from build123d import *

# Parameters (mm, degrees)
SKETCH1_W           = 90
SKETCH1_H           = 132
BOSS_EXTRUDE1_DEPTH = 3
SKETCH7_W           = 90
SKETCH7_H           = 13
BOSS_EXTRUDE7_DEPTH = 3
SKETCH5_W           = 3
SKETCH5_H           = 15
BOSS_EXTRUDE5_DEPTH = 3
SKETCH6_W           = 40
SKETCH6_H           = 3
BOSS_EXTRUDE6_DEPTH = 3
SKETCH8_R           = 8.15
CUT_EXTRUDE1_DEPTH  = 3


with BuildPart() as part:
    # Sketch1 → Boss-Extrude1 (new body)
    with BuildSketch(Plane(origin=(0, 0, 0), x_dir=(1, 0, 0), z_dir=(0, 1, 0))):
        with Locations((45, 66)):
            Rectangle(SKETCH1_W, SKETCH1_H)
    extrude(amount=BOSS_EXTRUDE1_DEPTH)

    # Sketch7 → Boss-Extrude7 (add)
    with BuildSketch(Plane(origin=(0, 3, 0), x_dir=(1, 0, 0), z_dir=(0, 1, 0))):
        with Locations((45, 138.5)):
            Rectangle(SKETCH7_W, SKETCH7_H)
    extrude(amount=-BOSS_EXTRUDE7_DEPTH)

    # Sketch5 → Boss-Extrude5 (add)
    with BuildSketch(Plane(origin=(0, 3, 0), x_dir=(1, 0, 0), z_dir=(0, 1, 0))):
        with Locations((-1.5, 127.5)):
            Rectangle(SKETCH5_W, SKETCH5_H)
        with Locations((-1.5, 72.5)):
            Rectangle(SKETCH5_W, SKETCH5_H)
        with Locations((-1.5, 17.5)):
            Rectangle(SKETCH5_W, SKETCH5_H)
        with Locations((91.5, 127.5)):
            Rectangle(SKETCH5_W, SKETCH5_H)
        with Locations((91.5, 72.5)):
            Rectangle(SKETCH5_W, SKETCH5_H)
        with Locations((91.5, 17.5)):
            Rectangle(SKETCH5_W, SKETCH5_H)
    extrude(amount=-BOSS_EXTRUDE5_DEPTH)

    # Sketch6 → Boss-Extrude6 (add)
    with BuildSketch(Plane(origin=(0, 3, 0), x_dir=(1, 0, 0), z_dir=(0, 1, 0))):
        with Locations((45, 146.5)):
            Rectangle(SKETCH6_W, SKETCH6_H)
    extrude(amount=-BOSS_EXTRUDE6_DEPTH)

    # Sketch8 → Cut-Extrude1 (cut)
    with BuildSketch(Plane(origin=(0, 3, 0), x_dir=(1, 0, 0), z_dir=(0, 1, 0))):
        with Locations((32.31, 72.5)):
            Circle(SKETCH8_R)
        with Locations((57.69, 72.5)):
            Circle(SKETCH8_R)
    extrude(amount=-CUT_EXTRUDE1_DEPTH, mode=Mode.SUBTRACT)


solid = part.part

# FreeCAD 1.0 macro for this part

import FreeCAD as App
import Part
import Sketcher
from FreeCAD import Vector


def add_polygon(sketch, points):
    """Adds a closed chain of lines whose ends are joined by coincident constraints."""
    first, n = sketch.GeometryCount, len(points)
    for a, b in zip(points, points[1:] + points[:1]):
        sketch.addGeometry(Part.LineSegment(App.Vector(*a, 0), App.Vector(*b, 0)), False)
    for i in range(n):
        sketch.addConstraint(Sketcher.Constraint("Coincident", first + i, 2, first + (i + 1) % n, 1))

doc = App.newDocument("Part")
body = doc.addObject("PartDesign::Body", "Body")

# Sketch on XZ plane
sketch1 = body.newObject("Sketcher::SketchObject", "Sketch")
sketch1.AttachmentSupport = (doc.getObject("XZ_Plane"), [""])
sketch1.MapMode = "FlatFace"
add_polygon(sketch1, [(0, -132), (0, 0), (90, 0), (90, -132)])  # lines 0-3
sketch1.addConstraint(Sketcher.Constraint("Vertical", 0))
sketch1.addConstraint(Sketcher.Constraint("Horizontal", 1))
sketch1.addConstraint(Sketcher.Constraint("Vertical", 2))
sketch1.addConstraint(Sketcher.Constraint("Horizontal", 3))
sketch1.addConstraint(Sketcher.Constraint("Coincident", 0, 2, -1, 1))
sketch1.addConstraint(Sketcher.Constraint("DistanceX", 1, 1, 1, 2, 90.0))
sketch1.addConstraint(Sketcher.Constraint("DistanceY", 0, 1, 0, 2, 132.0))
pad1 = body.newObject("PartDesign::Pad", "Pad")
pad1.Profile = sketch1
pad1.Length = 3
pad1.Reversed = True

# Sketch on XZ plane
sketch2 = body.newObject("Sketcher::SketchObject", "Sketch001")
sketch2.AttachmentSupport = (doc.getObject("XZ_Plane"), [""])
sketch2.MapMode = "FlatFace"
sketch2.AttachmentOffset = App.Placement(Vector(0, 0, -3), App.Rotation())
add_polygon(sketch2, [(0, -145), (0, -132), (90, -132), (90, -145)])  # lines 0-3
sketch2.addConstraint(Sketcher.Constraint("Vertical", 0))
sketch2.addConstraint(Sketcher.Constraint("Horizontal", 1))
sketch2.addConstraint(Sketcher.Constraint("Vertical", 2))
sketch2.addConstraint(Sketcher.Constraint("Horizontal", 3))
sketch2.addConstraint(Sketcher.Constraint("PointOnObject", 0, 2, -2))
sketch2.addConstraint(Sketcher.Constraint("DistanceX", 1, 1, 1, 2, 90.0))
sketch2.addConstraint(Sketcher.Constraint("DistanceY", 0, 1, 0, 2, 13.0))
sketch2.addConstraint(Sketcher.Constraint("DistanceY", 0, 2, -1, 1, 132.0))
pad2 = body.newObject("PartDesign::Pad", "Pad001")
pad2.Profile = sketch2
pad2.Length = 3

# Sketch on XZ plane
sketch3 = body.newObject("Sketcher::SketchObject", "Sketch002")
sketch3.AttachmentSupport = (doc.getObject("XZ_Plane"), [""])
sketch3.MapMode = "FlatFace"
sketch3.AttachmentOffset = App.Placement(Vector(0, 0, -3), App.Rotation())
add_polygon(sketch3, [(-3, -135), (-3, -120), (0, -120), (0, -135)])  # lines 0-3
add_polygon(sketch3, [(-3, -80), (-3, -65), (0, -65), (0, -80)])  # lines 4-7
add_polygon(sketch3, [(-3, -25), (-3, -10), (0, -10), (0, -25)])  # lines 8-11
add_polygon(sketch3, [(90, -135), (90, -120), (93, -120), (93, -135)])  # lines 12-15
add_polygon(sketch3, [(90, -80), (90, -65), (93, -65), (93, -80)])  # lines 16-19
add_polygon(sketch3, [(90, -25), (90, -10), (93, -10), (93, -25)])  # lines 20-23
sketch3.addConstraint(Sketcher.Constraint("Vertical", 0))
sketch3.addConstraint(Sketcher.Constraint("Horizontal", 1))
sketch3.addConstraint(Sketcher.Constraint("Vertical", 2))
sketch3.addConstraint(Sketcher.Constraint("Horizontal", 3))
sketch3.addConstraint(Sketcher.Constraint("Vertical", 4))
sketch3.addConstraint(Sketcher.Constraint("Horizontal", 5))
sketch3.addConstraint(Sketcher.Constraint("Vertical", 6))
sketch3.addConstraint(Sketcher.Constraint("Horizontal", 7))
sketch3.addConstraint(Sketcher.Constraint("Vertical", 8))
sketch3.addConstraint(Sketcher.Constraint("Horizontal", 9))
sketch3.addConstraint(Sketcher.Constraint("Vertical", 10))
sketch3.addConstraint(Sketcher.Constraint("Horizontal", 11))
sketch3.addConstraint(Sketcher.Constraint("Vertical", 12))
sketch3.addConstraint(Sketcher.Constraint("Horizontal", 13))
sketch3.addConstraint(Sketcher.Constraint("Vertical", 14))
sketch3.addConstraint(Sketcher.Constraint("Horizontal", 15))
sketch3.addConstraint(Sketcher.Constraint("Vertical", 16))
sketch3.addConstraint(Sketcher.Constraint("Horizontal", 17))
sketch3.addConstraint(Sketcher.Constraint("Vertical", 18))
sketch3.addConstraint(Sketcher.Constraint("Horizontal", 19))
sketch3.addConstraint(Sketcher.Constraint("Vertical", 20))
sketch3.addConstraint(Sketcher.Constraint("Horizontal", 21))
sketch3.addConstraint(Sketcher.Constraint("Vertical", 22))
sketch3.addConstraint(Sketcher.Constraint("Horizontal", 23))
sketch3.addConstraint(Sketcher.Constraint("PointOnObject", 1, 2, -2))
sketch3.addConstraint(Sketcher.Constraint("PointOnObject", 5, 2, -2))
sketch3.addConstraint(Sketcher.Constraint("PointOnObject", 9, 2, -2))
sketch3.addConstraint(Sketcher.Constraint("Horizontal", 1, 2, 12, 2))
sketch3.addConstraint(Sketcher.Constraint("Horizontal", 3, 2, 14, 2))
sketch3.addConstraint(Sketcher.Constraint("Horizontal", 5, 2, 16, 2))
sketch3.addConstraint(Sketcher.Constraint("Horizontal", 7, 2, 18, 2))
sketch3.addConstraint(Sketcher.Constraint("Horizontal", 9, 2, 20, 2))
sketch3.addConstraint(Sketcher.Constraint("Horizontal", 11, 2, 22, 2))
sketch3.addConstraint(Sketcher.Constraint("Vertical", 3, 2, 4, 2))
sketch3.addConstraint(Sketcher.Constraint("Vertical", 7, 2, 8, 2))
sketch3.addConstraint(Sketcher.Constraint("Vertical", 15, 2, 16, 2))
sketch3.addConstraint(Sketcher.Constraint("Vertical", 14, 2, 17, 2))
sketch3.addConstraint(Sketcher.Constraint("Vertical", 19, 2, 20, 2))
sketch3.addConstraint(Sketcher.Constraint("Vertical", 18, 2, 21, 2))
sketch3.addConstraint(Sketcher.Constraint("Equal", 11, 13))
sketch3.addConstraint(Sketcher.Constraint("Equal", 2, 4))
sketch3.addConstraint(Sketcher.Constraint("Equal", 6, 8))
sketch3.addConstraint(Sketcher.Constraint("DistanceX", 1, 1, 1, 2, 3.0))
sketch3.addConstraint(Sketcher.Constraint("DistanceY", 0, 1, 0, 2, 15.0))
sketch3.addConstraint(Sketcher.Constraint("DistanceY", 0, 2, -1, 1, 120.0))
sketch3.addConstraint(Sketcher.Constraint("DistanceY", 4, 2, -1, 1, 65.0))
sketch3.addConstraint(Sketcher.Constraint("DistanceY", 8, 2, -1, 1, 10.0))
sketch3.addConstraint(Sketcher.Constraint("DistanceX", -1, 1, 12, 2, 90.0))
pad3 = body.newObject("PartDesign::Pad", "Pad002")
pad3.Profile = sketch3
pad3.Length = 3

# Sketch on XZ plane
sketch4 = body.newObject("Sketcher::SketchObject", "Sketch003")
sketch4.AttachmentSupport = (doc.getObject("XZ_Plane"), [""])
sketch4.MapMode = "FlatFace"
sketch4.AttachmentOffset = App.Placement(Vector(0, 0, -3), App.Rotation())
add_polygon(sketch4, [(25, -148), (25, -145), (65, -145), (65, -148)])  # lines 0-3
sketch4.addConstraint(Sketcher.Constraint("Vertical", 0))
sketch4.addConstraint(Sketcher.Constraint("Horizontal", 1))
sketch4.addConstraint(Sketcher.Constraint("Vertical", 2))
sketch4.addConstraint(Sketcher.Constraint("Horizontal", 3))
sketch4.addConstraint(Sketcher.Constraint("DistanceX", 1, 1, 1, 2, 40.0))
sketch4.addConstraint(Sketcher.Constraint("DistanceY", 0, 1, 0, 2, 3.0))
sketch4.addConstraint(Sketcher.Constraint("DistanceX", -1, 1, 0, 2, 25.0))
sketch4.addConstraint(Sketcher.Constraint("DistanceY", 0, 2, -1, 1, 145.0))
pad4 = body.newObject("PartDesign::Pad", "Pad003")
pad4.Profile = sketch4
pad4.Length = 3

# Sketch on XZ plane
sketch5 = body.newObject("Sketcher::SketchObject", "Sketch004")
sketch5.AttachmentSupport = (doc.getObject("XZ_Plane"), [""])
sketch5.MapMode = "FlatFace"
sketch5.AttachmentOffset = App.Placement(Vector(0, 0, -3), App.Rotation())
sketch5.addGeometry(Part.Circle(Vector(32.31, -72.5, 0), Vector(0, 0, 1), 8.15), False)
sketch5.addGeometry(Part.Circle(Vector(57.69, -72.5, 0), Vector(0, 0, 1), 8.15), False)
sketch5.addConstraint(Sketcher.Constraint("Equal", 0, 1))
sketch5.addConstraint(Sketcher.Constraint("Horizontal", 0, 3, 1, 3))
sketch5.addConstraint(Sketcher.Constraint("Diameter", 0, 16.3))
sketch5.addConstraint(Sketcher.Constraint("DistanceY", 0, 3, -1, 1, 72.5))
sketch5.addConstraint(Sketcher.Constraint("DistanceX", -1, 1, 0, 3, 32.31))
sketch5.addConstraint(Sketcher.Constraint("DistanceX", -1, 1, 1, 3, 57.69))
pocket1 = body.newObject("PartDesign::Pocket", "Pocket")
pocket1.Profile = sketch5
pocket1.Length = 3
pocket1.Reversed = True

doc.recompute()
